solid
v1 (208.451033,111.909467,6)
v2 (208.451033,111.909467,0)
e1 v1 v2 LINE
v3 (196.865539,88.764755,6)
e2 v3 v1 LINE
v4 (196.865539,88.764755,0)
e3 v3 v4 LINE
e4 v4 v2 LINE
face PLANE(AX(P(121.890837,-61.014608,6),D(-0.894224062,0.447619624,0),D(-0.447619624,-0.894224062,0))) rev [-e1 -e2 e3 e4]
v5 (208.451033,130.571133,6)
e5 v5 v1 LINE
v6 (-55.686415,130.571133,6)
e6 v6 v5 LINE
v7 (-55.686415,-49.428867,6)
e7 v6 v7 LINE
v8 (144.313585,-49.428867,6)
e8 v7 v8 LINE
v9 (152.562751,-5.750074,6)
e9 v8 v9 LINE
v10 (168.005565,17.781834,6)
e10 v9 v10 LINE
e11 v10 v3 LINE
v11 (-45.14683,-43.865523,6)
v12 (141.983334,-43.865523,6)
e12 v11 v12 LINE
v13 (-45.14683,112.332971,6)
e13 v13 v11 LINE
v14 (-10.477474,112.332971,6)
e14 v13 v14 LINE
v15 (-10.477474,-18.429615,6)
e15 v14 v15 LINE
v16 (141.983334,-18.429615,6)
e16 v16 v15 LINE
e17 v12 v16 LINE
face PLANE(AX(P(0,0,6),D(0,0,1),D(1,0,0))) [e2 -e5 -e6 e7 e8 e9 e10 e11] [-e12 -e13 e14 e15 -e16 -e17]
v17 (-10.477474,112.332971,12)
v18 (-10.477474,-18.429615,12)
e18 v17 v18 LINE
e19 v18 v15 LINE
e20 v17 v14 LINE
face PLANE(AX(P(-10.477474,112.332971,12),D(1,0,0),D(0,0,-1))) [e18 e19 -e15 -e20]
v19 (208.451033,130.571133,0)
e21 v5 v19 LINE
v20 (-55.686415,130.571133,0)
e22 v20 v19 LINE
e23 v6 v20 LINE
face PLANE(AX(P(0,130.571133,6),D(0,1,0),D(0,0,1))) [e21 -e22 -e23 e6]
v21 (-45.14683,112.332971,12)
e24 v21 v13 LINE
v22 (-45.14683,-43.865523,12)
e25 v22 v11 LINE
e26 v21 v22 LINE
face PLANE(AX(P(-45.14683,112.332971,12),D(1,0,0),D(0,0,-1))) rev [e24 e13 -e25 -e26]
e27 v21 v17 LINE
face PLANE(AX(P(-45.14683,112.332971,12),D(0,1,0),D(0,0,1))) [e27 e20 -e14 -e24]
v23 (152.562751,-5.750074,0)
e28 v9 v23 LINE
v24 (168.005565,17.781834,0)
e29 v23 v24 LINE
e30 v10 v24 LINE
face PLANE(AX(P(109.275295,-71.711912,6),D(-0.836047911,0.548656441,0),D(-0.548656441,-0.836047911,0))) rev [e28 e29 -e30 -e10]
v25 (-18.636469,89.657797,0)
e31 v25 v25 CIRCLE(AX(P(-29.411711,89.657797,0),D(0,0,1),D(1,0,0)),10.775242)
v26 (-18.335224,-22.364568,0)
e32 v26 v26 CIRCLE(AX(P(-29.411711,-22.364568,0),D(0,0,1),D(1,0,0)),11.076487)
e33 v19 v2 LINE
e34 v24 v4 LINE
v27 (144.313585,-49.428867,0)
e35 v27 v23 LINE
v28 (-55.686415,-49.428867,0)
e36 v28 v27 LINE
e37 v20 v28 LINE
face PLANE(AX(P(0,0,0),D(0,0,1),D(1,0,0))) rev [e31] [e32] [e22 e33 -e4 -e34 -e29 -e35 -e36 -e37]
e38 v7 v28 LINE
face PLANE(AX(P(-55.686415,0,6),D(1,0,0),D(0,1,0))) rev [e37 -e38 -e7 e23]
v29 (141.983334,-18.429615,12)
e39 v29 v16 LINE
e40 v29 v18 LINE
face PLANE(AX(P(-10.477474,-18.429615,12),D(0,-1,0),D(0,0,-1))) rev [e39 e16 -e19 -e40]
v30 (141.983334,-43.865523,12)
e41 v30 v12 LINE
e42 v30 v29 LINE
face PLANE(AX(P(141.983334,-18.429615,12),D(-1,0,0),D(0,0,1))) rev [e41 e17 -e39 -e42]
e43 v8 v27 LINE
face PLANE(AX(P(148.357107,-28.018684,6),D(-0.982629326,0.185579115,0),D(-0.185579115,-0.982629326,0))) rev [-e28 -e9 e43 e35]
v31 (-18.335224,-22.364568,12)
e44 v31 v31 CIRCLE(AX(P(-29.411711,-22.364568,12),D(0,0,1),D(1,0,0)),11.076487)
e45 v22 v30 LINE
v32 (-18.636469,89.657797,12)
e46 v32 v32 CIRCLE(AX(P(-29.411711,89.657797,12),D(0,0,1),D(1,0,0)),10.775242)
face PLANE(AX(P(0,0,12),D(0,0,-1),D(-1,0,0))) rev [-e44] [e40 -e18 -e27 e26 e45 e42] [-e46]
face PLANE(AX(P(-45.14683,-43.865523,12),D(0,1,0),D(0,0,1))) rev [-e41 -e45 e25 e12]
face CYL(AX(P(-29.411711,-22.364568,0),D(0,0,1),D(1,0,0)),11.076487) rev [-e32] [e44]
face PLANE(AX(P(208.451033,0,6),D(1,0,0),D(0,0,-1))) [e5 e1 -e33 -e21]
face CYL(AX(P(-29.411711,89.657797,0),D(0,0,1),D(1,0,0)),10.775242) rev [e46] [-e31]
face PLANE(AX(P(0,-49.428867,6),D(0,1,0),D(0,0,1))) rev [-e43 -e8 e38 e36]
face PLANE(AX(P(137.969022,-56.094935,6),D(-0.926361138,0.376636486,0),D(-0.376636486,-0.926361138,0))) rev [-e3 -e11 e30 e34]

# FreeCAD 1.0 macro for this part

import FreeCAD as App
import Part
import Sketcher

V = App.Vector

doc = App.newDocument("Part")
body = doc.addObject("PartDesign::Body", "Body")

# Sketch on XY plane
sketch1 = body.newObject("Sketcher::SketchObject", "Sketch")
sketch1.AttachmentSupport = (doc.getObject("XY_Plane"), [""])
sketch1.MapMode = "FlatFace"
sketch1.addGeometry(Part.LineSegment(V(182.35684, 53.079696, 0), V(196.865539, 88.764755, 0)), False)
sketch1.addGeometry(Part.LineSegment(V(196.865539, 88.764755, 0), V(208.451033, 111.909467, 0)), False)
sketch1.addGeometry(Part.LineSegment(V(208.451033, 111.909467, 0), V(208.451033, 130.571133, 0)), False)
sketch1.addGeometry(Part.LineSegment(V(208.451033, 130.571133, 0), V(-55.686415, 130.571133, 0)), False)
sketch1.addGeometry(Part.LineSegment(V(-55.686415, 130.571133, 0), V(-55.686415, -49.428867, 0)), False)
sketch1.addGeometry(Part.LineSegment(V(-55.686415, -49.428867, 0), V(144.313585, -49.428867, 0)), False)
sketch1.addGeometry(Part.LineSegment(V(144.313585, -49.428867, 0), V(152.562751, -5.750074, 0)), False)
sketch1.addGeometry(Part.LineSegment(V(152.562751, -5.750074, 0), V(168.005565, 17.781834, 0)), False)
sketch1.addGeometry(Part.LineSegment(V(168.005565, 17.781834, 0), V(182.35684, 53.079696, 0)), False)
sketch1.addConstraint(Sketcher.Constraint("Coincident", 0, 2, 1, 1))
sketch1.addConstraint(Sketcher.Constraint("Coincident", 1, 2, 2, 1))
sketch1.addConstraint(Sketcher.Constraint("Coincident", 2, 2, 3, 1))
sketch1.addConstraint(Sketcher.Constraint("Coincident", 3, 2, 4, 1))
sketch1.addConstraint(Sketcher.Constraint("Coincident", 4, 2, 5, 1))
sketch1.addConstraint(Sketcher.Constraint("Coincident", 5, 2, 6, 1))
sketch1.addConstraint(Sketcher.Constraint("Coincident", 6, 2, 7, 1))
sketch1.addConstraint(Sketcher.Constraint("Coincident", 7, 2, 8, 1))
sketch1.addConstraint(Sketcher.Constraint("Coincident", 8, 2, 0, 1))
sketch1.addConstraint(Sketcher.Constraint("Vertical", 2))
sketch1.addConstraint(Sketcher.Constraint("Horizontal", 3))
sketch1.addConstraint(Sketcher.Constraint("Vertical", 4))
sketch1.addConstraint(Sketcher.Constraint("Horizontal", 5))
sketch1.addConstraint(Sketcher.Constraint("Parallel", 0, 8))
sketch1.addConstraint(Sketcher.Constraint("DistanceX", 5, 1, 5, 2, 200.0))
sketch1.addConstraint(Sketcher.Constraint("DistanceY", 4, 2, 4, 1, 180.0))
sketch1.addConstraint(Sketcher.Constraint("DistanceY", 5, 2, 7, 2, 67.210701))
sketch1.addConstraint(Sketcher.Constraint("DistanceX", 8, 2, 0, 2, 14.508699))
sketch1.addConstraint(Sketcher.Constraint("Distance", 8, 38.103781))
sketch1.addConstraint(Sketcher.Constraint("DistanceX", 3, 2, 3, 1, 264.137447))
sketch1.addConstraint(Sketcher.Constraint("DistanceY", 2, 1, 2, 2, 18.661666))
sketch1.addConstraint(Sketcher.Constraint("DistanceX", -1, 1, 0, 2, 196.865539))
sketch1.addConstraint(Sketcher.Constraint("DistanceX", -1, 1, 6, 2, 152.562751))
sketch1.addConstraint(Sketcher.Constraint("DistanceY", 0, 2, 1, 2, 23.144712))
sketch1.addConstraint(Sketcher.Constraint("DistanceY", 6, 2, 0, 2, 94.514829))
sketch1.addConstraint(Sketcher.Constraint("DistanceX", 6, 2, 1, 2, 55.888282))
sketch1.addConstraint(Sketcher.Constraint("DistanceY", -1, 1, 0, 2, 88.764755))
pad1 = body.newObject("PartDesign::Pad", "Pad")
pad1.Profile = sketch1
pad1.Length = 6

# Sketch on XY plane
sketch2 = body.newObject("Sketcher::SketchObject", "Sketch001")
sketch2.AttachmentSupport = (doc.getObject("XY_Plane"), [""])
sketch2.MapMode = "FlatFace"
sketch2.AttachmentOffset = App.Placement(V(0, 0, 6), App.Rotation())
sketch2.addGeometry(Part.LineSegment(V(-45.14683, 112.332971, 0), V(-45.14683, -43.865523, 0)), False)
sketch2.addGeometry(Part.LineSegment(V(-45.14683, -43.865523, 0), V(-10.477474, -43.865523, 0)), False)
sketch2.addGeometry(Part.LineSegment(V(-10.477474, -43.865523, 0), V(-10.477474, 112.332971, 0)), False)
sketch2.addGeometry(Part.LineSegment(V(-10.477474, 112.332971, 0), V(-45.14683, 112.332971, 0)), False)
sketch2.addConstraint(Sketcher.Constraint("Coincident", 0, 2, 1, 1))
sketch2.addConstraint(Sketcher.Constraint("Coincident", 1, 2, 2, 1))
sketch2.addConstraint(Sketcher.Constraint("Coincident", 2, 2, 3, 1))
sketch2.addConstraint(Sketcher.Constraint("Coincident", 3, 2, 0, 1))
sketch2.addConstraint(Sketcher.Constraint("Vertical", 0))
sketch2.addConstraint(Sketcher.Constraint("Horizontal", 1))
sketch2.addConstraint(Sketcher.Constraint("Vertical", 2))
sketch2.addConstraint(Sketcher.Constraint("Horizontal", 3))
sketch2.addConstraint(Sketcher.Constraint("DistanceX", 1, 1, 1, 2, 34.669355))
sketch2.addConstraint(Sketcher.Constraint("DistanceY", 0, 2, 0, 1, 156.198494))
sketch2.addConstraint(Sketcher.Constraint("DistanceX", 0, 2, -1, 1, 45.14683))
sketch2.addConstraint(Sketcher.Constraint("DistanceY", -1, 1, 2, 2, 112.332971))
pad2 = body.newObject("PartDesign::Pad", "Pad001")
pad2.Profile = sketch2
pad2.Length = 6

# Sketch on XY plane
sketch3 = body.newObject("Sketcher::SketchObject", "Sketch002")
sketch3.AttachmentSupport = (doc.getObject("XY_Plane"), [""])
sketch3.MapMode = "FlatFace"
sketch3.AttachmentOffset = App.Placement(V(0, 0, 6), App.Rotation())
sketch3.addGeometry(Part.LineSegment(V(-10.477474, -18.429615, 0), V(-10.477474, -43.865523, 0)), False)
sketch3.addGeometry(Part.LineSegment(V(-10.477474, -43.865523, 0), V(141.983334, -43.865523, 0)), False)
sketch3.addGeometry(Part.LineSegment(V(141.983334, -43.865523, 0), V(141.983334, -18.429615, 0)), False)
sketch3.addGeometry(Part.LineSegment(V(141.983334, -18.429615, 0), V(-10.477474, -18.429615, 0)), False)
sketch3.addConstraint(Sketcher.Constraint("Coincident", 0, 2, 1, 1))
sketch3.addConstraint(Sketcher.Constraint("Coincident", 1, 2, 2, 1))
sketch3.addConstraint(Sketcher.Constraint("Coincident", 2, 2, 3, 1))
sketch3.addConstraint(Sketcher.Constraint("Coincident", 3, 2, 0, 1))
sketch3.addConstraint(Sketcher.Constraint("Vertical", 0))
sketch3.addConstraint(Sketcher.Constraint("Horizontal", 1))
sketch3.addConstraint(Sketcher.Constraint("Vertical", 2))
sketch3.addConstraint(Sketcher.Constraint("Horizontal", 3))
sketch3.addConstraint(Sketcher.Constraint("DistanceX", 1, 1, 1, 2, 152.460809))
sketch3.addConstraint(Sketcher.Constraint("DistanceY", 0, 2, 0, 1, 25.435907))
sketch3.addConstraint(Sketcher.Constraint("DistanceX", 0, 2, -1, 1, 10.477474))
sketch3.addConstraint(Sketcher.Constraint("DistanceY", 0, 2, -1, 1, 43.865523))
pad3 = body.newObject("PartDesign::Pad", "Pad002")
pad3.Profile = sketch3
pad3.Length = 6

# Sketch on XY plane
sketch4 = body.newObject("Sketcher::SketchObject", "Sketch003")
sketch4.AttachmentSupport = (doc.getObject("XY_Plane"), [""])
sketch4.MapMode = "FlatFace"
sketch4.AttachmentOffset = App.Placement(V(0, 0, 12), App.Rotation())
sketch4.addGeometry(Part.Circle(V(-29.411711, -22.364568, 0), V(0, 0, 1), 11.076487), False)
sketch4.addGeometry(Part.Circle(V(-29.411711, 89.657797, 0), V(0, 0, 1), 10.775242), False)
sketch4.addConstraint(Sketcher.Constraint("Vertical", 0, 3, 1, 3))
sketch4.addConstraint(Sketcher.Constraint("Diameter", 0, 22.152973))
sketch4.addConstraint(Sketcher.Constraint("Diameter", 1, 21.550484))
sketch4.addConstraint(Sketcher.Constraint("DistanceX", 0, 3, -1, 1, 29.411711))
sketch4.addConstraint(Sketcher.Constraint("DistanceY", 0, 3, -1, 1, 22.364568))
sketch4.addConstraint(Sketcher.Constraint("DistanceY", -1, 1, 1, 3, 89.657797))
pocket1 = body.newObject("PartDesign::Pocket", "Pocket")
pocket1.Profile = sketch4
pocket1.Length = 12

doc.recompute()
